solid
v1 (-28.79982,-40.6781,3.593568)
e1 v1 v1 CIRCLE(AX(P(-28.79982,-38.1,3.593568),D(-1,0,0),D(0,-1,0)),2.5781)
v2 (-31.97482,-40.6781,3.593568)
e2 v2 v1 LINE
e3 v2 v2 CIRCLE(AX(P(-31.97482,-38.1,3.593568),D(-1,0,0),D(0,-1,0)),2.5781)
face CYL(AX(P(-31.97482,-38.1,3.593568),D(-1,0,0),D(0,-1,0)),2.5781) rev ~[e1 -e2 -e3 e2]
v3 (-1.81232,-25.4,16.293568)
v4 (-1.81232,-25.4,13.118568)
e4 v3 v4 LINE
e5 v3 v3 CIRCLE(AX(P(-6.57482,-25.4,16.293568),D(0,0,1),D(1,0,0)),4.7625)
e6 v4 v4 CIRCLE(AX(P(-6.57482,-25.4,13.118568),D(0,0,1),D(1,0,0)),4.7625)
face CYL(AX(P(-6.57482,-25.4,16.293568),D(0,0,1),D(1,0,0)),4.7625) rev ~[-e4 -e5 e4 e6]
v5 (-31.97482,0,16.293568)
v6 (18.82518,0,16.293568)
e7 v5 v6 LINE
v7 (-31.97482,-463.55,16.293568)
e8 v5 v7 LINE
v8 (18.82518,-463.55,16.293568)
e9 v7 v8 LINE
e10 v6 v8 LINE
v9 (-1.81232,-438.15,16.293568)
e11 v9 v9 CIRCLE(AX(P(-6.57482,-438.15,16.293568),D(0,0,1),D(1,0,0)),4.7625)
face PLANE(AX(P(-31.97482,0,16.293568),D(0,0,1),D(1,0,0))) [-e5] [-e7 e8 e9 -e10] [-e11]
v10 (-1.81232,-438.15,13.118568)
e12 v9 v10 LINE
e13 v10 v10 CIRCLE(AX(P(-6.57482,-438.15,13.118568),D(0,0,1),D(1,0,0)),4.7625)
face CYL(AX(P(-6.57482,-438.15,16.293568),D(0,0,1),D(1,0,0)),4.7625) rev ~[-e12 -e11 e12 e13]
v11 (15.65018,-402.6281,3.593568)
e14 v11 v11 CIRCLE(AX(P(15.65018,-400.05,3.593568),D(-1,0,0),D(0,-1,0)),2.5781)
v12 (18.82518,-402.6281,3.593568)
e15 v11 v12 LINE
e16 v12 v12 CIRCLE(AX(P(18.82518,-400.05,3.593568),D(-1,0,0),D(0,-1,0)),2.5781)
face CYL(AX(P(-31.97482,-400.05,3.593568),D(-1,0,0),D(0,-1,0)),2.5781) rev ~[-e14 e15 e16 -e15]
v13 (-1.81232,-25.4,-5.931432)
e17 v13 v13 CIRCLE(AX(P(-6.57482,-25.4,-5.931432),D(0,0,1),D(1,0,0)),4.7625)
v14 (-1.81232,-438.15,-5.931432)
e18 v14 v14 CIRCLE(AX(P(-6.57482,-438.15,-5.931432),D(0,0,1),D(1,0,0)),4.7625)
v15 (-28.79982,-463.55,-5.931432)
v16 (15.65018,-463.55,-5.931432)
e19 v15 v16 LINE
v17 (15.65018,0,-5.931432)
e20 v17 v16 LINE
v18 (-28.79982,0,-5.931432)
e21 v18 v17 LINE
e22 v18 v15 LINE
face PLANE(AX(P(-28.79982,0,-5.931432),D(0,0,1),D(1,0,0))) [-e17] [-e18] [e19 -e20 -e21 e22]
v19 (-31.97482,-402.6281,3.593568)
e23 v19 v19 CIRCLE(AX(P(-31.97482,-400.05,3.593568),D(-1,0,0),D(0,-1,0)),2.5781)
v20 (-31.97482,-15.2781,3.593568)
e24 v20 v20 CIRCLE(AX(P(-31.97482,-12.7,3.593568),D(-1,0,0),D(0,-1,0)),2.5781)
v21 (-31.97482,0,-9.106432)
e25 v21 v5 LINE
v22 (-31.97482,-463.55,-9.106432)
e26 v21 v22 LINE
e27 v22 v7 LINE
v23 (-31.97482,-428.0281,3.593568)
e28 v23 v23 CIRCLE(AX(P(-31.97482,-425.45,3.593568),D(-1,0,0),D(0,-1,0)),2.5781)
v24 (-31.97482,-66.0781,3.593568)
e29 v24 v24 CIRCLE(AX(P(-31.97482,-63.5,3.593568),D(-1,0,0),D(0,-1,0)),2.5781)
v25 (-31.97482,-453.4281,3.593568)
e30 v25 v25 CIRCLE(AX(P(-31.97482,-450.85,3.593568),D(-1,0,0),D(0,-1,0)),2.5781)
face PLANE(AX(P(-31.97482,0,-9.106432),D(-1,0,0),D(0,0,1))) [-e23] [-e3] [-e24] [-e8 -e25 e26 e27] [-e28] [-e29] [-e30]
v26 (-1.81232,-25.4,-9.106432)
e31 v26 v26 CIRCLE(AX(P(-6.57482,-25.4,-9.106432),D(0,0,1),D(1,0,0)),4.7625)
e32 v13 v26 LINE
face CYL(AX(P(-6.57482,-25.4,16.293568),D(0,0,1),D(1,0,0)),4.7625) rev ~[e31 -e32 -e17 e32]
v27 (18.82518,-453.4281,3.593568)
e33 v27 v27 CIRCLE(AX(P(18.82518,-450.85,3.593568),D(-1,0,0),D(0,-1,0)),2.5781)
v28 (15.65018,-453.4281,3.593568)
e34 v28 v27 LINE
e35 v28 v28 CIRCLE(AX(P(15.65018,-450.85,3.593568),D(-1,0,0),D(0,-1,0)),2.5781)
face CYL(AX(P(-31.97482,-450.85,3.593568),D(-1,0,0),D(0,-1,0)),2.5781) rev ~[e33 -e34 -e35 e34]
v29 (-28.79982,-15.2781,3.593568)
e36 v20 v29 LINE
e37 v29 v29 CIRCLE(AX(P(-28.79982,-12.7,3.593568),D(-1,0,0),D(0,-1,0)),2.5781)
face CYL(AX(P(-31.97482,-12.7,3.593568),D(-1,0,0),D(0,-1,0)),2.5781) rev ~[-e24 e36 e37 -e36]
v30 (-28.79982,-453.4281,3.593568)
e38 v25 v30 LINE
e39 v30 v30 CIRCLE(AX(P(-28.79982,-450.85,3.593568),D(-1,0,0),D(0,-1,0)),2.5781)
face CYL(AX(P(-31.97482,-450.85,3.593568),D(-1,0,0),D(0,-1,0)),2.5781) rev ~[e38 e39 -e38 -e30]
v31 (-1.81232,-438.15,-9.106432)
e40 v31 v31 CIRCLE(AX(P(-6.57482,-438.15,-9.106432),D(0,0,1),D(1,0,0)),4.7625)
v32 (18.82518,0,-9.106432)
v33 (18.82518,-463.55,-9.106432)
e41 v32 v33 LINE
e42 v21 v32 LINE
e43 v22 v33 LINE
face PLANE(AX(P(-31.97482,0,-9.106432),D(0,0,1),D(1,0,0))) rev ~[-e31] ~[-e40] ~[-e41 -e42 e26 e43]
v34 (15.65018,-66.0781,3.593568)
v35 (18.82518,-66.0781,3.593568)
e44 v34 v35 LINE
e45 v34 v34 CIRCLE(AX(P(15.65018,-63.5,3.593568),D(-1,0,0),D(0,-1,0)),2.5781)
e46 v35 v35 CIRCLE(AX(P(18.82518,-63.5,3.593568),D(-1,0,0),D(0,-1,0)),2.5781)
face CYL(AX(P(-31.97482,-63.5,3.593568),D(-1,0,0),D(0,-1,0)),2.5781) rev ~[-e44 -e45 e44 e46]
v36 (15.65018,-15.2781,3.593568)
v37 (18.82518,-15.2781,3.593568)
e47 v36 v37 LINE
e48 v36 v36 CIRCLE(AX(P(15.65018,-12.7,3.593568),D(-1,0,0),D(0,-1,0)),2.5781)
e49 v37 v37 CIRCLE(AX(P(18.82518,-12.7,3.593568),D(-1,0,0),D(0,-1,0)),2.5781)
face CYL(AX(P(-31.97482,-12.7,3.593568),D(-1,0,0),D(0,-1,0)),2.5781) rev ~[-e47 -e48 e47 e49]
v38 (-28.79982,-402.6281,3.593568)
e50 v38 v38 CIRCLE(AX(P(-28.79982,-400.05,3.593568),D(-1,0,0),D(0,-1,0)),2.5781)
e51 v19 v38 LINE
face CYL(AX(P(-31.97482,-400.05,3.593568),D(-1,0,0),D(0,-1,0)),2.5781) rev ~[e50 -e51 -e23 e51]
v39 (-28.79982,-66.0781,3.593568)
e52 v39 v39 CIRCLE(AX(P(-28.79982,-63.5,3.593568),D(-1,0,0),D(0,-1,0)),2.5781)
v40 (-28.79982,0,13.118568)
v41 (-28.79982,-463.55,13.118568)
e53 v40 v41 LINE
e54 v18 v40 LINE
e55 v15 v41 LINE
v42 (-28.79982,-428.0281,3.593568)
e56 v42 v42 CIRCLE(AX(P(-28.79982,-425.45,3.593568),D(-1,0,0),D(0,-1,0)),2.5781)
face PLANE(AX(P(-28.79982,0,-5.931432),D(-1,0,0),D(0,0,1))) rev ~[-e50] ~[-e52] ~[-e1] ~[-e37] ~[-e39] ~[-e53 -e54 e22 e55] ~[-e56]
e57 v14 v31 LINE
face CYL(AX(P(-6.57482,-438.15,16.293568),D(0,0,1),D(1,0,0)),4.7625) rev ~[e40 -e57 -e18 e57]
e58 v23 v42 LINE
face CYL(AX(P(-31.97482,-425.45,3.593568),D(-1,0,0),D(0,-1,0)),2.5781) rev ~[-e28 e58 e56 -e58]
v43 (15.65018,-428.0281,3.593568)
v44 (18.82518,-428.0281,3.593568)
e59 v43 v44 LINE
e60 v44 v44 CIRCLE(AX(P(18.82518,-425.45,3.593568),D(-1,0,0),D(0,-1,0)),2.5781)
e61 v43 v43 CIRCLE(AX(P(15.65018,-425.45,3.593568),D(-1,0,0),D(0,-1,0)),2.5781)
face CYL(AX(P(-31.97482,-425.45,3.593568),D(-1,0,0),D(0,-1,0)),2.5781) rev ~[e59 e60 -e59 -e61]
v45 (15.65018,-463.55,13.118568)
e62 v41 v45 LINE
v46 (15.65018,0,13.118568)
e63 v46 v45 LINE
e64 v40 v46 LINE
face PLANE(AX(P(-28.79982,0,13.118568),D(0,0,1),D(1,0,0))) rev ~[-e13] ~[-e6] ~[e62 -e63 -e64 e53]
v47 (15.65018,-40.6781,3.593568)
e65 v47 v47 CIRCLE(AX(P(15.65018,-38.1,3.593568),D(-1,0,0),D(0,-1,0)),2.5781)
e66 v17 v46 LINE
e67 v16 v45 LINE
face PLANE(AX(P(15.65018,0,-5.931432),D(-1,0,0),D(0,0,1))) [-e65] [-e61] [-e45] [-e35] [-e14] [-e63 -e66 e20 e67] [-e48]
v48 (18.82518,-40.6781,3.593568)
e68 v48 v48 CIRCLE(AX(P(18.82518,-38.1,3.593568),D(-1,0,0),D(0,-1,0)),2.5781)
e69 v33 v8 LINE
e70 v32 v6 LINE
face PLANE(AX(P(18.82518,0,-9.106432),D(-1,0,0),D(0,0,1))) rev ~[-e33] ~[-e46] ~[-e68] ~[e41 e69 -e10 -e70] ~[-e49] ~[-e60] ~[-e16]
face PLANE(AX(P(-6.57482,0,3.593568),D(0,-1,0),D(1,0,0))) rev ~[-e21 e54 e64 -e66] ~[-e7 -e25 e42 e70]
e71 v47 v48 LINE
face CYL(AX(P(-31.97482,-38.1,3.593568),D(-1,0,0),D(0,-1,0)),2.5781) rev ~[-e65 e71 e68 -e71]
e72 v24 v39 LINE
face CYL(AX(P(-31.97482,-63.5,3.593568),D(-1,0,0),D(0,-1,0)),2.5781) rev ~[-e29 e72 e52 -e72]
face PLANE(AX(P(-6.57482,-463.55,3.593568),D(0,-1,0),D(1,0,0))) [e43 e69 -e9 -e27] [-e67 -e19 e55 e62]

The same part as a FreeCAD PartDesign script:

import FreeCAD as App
import Part
import Sketcher
from FreeCAD import Vector
Q = App.Units.Quantity


def add_polygon(sketch, points):
    """Adds a closed chain of lines whose ends are joined by coincident constraints."""
    first, n = sketch.GeometryCount, len(points)
    for a, b in zip(points, points[1:] + points[:1]):
        sketch.addGeometry(Part.LineSegment(App.Vector(*a, 0), App.Vector(*b, 0)), False)
    for i in range(n):
        sketch.addConstraint(Sketcher.Constraint("Coincident", first + i, 2, first + (i + 1) % n, 1))

doc = App.newDocument("Part")
params = doc.addObject("Spreadsheet::Sheet", "Params")
for row, (alias, value) in enumerate([
    ("sketch1_width", "2 in"),
    ("sketch1_height", "1 in"),
    ("sketch1_width2", "1.75 in"),
    ("sketch1_height2", "0.75 in"),
    ("pad1_length", "18.25 in"),
    ("sketch2_diameter", "0.203 in"),
    ("sketch3_diameter", "0.375 in"),
], start=1):
    params.set(f"A{row}", alias)
    params.set(f"B{row}", "=" + value)
    params.setAlias(f"B{row}", alias)

body = doc.addObject("PartDesign::Body", "Body")

# Sketch on XZ plane
sketch1 = body.newObject("Sketcher::SketchObject", "Sketch")
sketch1.AttachmentSupport = (doc.getObject("XZ_Plane"), [""])
sketch1.MapMode = "FlatFace"
add_polygon(sketch1, [(-32, 16), (-32, -9), (19, -9), (19, 16)])  # lines 0-3
add_polygon(sketch1, [(16, -6), (-29, -6), (-29, 13), (16, 13)])  # lines 4-7
sketch1.addConstraint([
    Sketcher.Constraint("Vertical", 0),
    Sketcher.Constraint("Horizontal", 1),
    Sketcher.Constraint("Vertical", 2),
    Sketcher.Constraint("Horizontal", 3),
    Sketcher.Constraint("Horizontal", 4),
    Sketcher.Constraint("Vertical", 5),
    Sketcher.Constraint("Horizontal", 6),
    Sketcher.Constraint("Vertical", 7),
    Sketcher.Constraint("DistanceX", 1, 1, 1, 2, Q("2 in")),
    Sketcher.Constraint("DistanceY", 0, 2, 0, 1, Q("1 in")),
    Sketcher.Constraint("DistanceX", 4, 2, 4, 1, Q("1.75 in")),
    Sketcher.Constraint("DistanceY", 5, 1, 5, 2, Q("0.75 in")),
    Sketcher.Constraint("DistanceX", 0, 2, 4, 2, Q("0.125 in")),
    Sketcher.Constraint("DistanceY", 0, 2, 4, 2, Q("0.125 in")),
    Sketcher.Constraint("DistanceX", 0, 2, -1, 1, Q("31.97482 mm")),
    Sketcher.Constraint("DistanceY", -1, 1, 2, 2, Q("16.293568 mm")),
])
sketch1.setExpression("Constraints[16]", "Params.sketch1_width")
sketch1.setExpression("Constraints[17]", "Params.sketch1_height")
sketch1.setExpression("Constraints[18]", "Params.sketch1_width2")
sketch1.setExpression("Constraints[19]", "Params.sketch1_height2")
pad1 = body.newObject("PartDesign::Pad", "Pad")
pad1.Profile = sketch1
pad1.setExpression("Length", "Params.pad1_length")

# Sketch on YZ plane
sketch2 = body.newObject("Sketcher::SketchObject", "Sketch001")
sketch2.AttachmentSupport = (doc.getObject("YZ_Plane"), [""])
sketch2.MapMode = "FlatFace"
sketch2.AttachmentOffset = App.Placement(Vector(0, 0, -31.97482), App.Rotation())
sketch2.addGeometry([
    Part.Circle(Vector(-12.7, 3.6, 0), Vector(0, 0, 1), 2.6),  # 0
    Part.Circle(Vector(-38.1, 3.6, 0), Vector(0, 0, 1), 2.6),  # 1
    Part.Circle(Vector(-63.5, 3.6, 0), Vector(0, 0, 1), 2.6),  # 2
    Part.Circle(Vector(-400.1, 3.6, 0), Vector(0, 0, 1), 2.6),  # 3
    Part.Circle(Vector(-425.4, 3.6, 0), Vector(0, 0, 1), 2.6),  # 4
    Part.Circle(Vector(-450.9, 3.6, 0), Vector(0, 0, 1), 2.6),  # 5
], False)
sketch2.addConstraint([
    Sketcher.Constraint("Equal", 0, 1),
    Sketcher.Constraint("Equal", 1, 2),
    Sketcher.Constraint("Equal", 2, 3),
    Sketcher.Constraint("Equal", 3, 4),
    Sketcher.Constraint("Equal", 4, 5),
    Sketcher.Constraint("Horizontal", 0, 3, 1, 3),
    Sketcher.Constraint("Horizontal", 1, 3, 2, 3),
    Sketcher.Constraint("Horizontal", 2, 3, 3, 3),
    Sketcher.Constraint("Horizontal", 3, 3, 4, 3),
    Sketcher.Constraint("Horizontal", 4, 3, 5, 3),
    Sketcher.Constraint("Diameter", 0, Q("0.203 in")),
    Sketcher.Constraint("DistanceX", 1, 3, 0, 3, Q("1 in")),
    Sketcher.Constraint("DistanceX", 2, 3, 1, 3, Q("1 in")),
    Sketcher.Constraint("DistanceX", 4, 3, 3, 3, Q("1 in")),
    Sketcher.Constraint("DistanceX", 5, 3, 4, 3, Q("1 in")),
    Sketcher.Constraint("DistanceX", 0, 3, -1, 1, Q("0.5 in")),
    Sketcher.Constraint("DistanceX", 3, 3, -1, 1, Q("15.75 in")),
    Sketcher.Constraint("DistanceY", -1, 1, 0, 3, Q("3.593568 mm")),
])
sketch2.setExpression("Constraints[10]", "Params.sketch2_diameter")
pocket1 = body.newObject("PartDesign::Pocket", "Pocket")
pocket1.Profile = sketch2
pocket1.Type = "ThroughAll"
pocket1.Reversed = True

# Sketch on XY plane
sketch3 = body.newObject("Sketcher::SketchObject", "Sketch002")
sketch3.AttachmentSupport = (doc.getObject("XY_Plane"), [""])
sketch3.MapMode = "FlatFace"
sketch3.AttachmentOffset = App.Placement(Vector(0, 0, 16.293568), App.Rotation())
sketch3.addGeometry([
    Part.Circle(Vector(-6.6, -438.1, 0), Vector(0, 0, 1), 4.8),
    Part.Circle(Vector(-6.6, -25.4, 0), Vector(0, 0, 1), 4.8),
], False)
sketch3.addConstraint([
    Sketcher.Constraint("Equal", 0, 1),
    Sketcher.Constraint("Vertical", 0, 3, 1, 3),
    Sketcher.Constraint("Diameter", 0, Q("0.375 in")),
    Sketcher.Constraint("DistanceY", 1, 3, -1, 1, Q("1 in")),
    Sketcher.Constraint("DistanceY", 0, 3, -1, 1, Q("17.25 in")),
    Sketcher.Constraint("DistanceX", 0, 3, -1, 1, Q("6.57482 mm")),
])
sketch3.setExpression("Constraints[2]", "Params.sketch3_diameter")
pocket2 = body.newObject("PartDesign::Pocket", "Pocket001")
pocket2.Profile = sketch3
pocket2.Type = "ThroughAll"

doc.recompute()
